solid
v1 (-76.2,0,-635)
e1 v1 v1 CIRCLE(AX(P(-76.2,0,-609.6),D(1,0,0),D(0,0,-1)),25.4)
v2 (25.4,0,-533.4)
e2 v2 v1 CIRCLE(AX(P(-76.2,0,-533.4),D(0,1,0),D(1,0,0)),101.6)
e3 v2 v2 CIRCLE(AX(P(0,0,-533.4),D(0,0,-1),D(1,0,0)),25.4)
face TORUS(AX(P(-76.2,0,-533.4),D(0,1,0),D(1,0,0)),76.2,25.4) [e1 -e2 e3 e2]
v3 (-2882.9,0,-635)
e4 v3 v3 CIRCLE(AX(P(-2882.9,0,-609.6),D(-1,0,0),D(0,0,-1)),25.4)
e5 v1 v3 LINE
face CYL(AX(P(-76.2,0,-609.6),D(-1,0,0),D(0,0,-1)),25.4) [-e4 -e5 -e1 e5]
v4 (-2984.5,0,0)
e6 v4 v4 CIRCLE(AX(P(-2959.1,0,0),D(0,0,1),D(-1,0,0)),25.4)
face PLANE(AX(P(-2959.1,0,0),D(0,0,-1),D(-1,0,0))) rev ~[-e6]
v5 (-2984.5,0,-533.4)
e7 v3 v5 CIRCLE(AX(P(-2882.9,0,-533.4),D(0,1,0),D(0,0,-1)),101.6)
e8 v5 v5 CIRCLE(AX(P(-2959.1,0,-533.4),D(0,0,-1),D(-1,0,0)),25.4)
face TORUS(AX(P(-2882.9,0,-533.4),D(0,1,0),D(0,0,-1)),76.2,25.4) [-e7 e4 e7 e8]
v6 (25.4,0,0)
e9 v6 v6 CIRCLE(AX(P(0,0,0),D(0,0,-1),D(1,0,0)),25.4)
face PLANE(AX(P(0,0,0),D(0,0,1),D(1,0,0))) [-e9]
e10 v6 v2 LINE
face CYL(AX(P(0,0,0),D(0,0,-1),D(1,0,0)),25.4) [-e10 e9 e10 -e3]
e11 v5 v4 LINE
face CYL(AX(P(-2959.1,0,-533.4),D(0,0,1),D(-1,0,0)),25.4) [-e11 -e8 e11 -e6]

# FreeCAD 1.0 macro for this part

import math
import FreeCAD as App
import Part
import Sketcher

V = App.Vector
Q = App.Units.Quantity

doc = App.newDocument("Part")
body = doc.addObject("PartDesign::Body", "Body")

# Sketch on XY plane
sketch1 = doc.addObject("Sketcher::SketchObject", "Sketch")
body.addObject(sketch1)
sketch1.AttachmentSupport = (doc.XY_Plane, [""])
sketch1.MapMode = "FlatFace"
sketch1.addGeometry(Part.Circle(V(0, 0, 0), V(0, 0, 1), 25), False)
sketch1.addConstraint([
    Sketcher.Constraint("Coincident", 0, 3, -1, 1),
    Sketcher.Constraint("Diameter", 0, Q("2 in")),
])

# Sketch on XZ plane
sketch2 = doc.addObject("Sketcher::SketchObject", "Sketch001")
body.addObject(sketch2)
sketch2.AttachmentSupport = (doc.XZ_Plane, [""])
sketch2.MapMode = "FlatFace"
sketch2.addGeometry([
    Part.LineSegment(V(0, 0, 0), V(0, -533, 0)),  # 0
    Part.ArcOfCircle(Part.Circle(V(-76, -533, 0), V(0, 0, 1), 76), math.radians(-90), math.radians(0)),  # 1
    Part.LineSegment(V(-76, -610, 0), V(-2883, -610, 0)),  # 2
    Part.ArcOfCircle(Part.Circle(V(-2883, -533, 0), V(0, 0, 1), 76), math.radians(180), math.radians(270)),  # 3
    Part.LineSegment(V(-2959, -533, 0), V(-2959, 0, 0)),  # 4
], False)
sketch2.addConstraint([
    Sketcher.Constraint("Tangent", 0, 2, 1, 2),
    Sketcher.Constraint("Tangent", 1, 1, 2, 1),
    Sketcher.Constraint("Tangent", 2, 2, 3, 2),
    Sketcher.Constraint("Tangent", 3, 1, 4, 1),
    Sketcher.Constraint("Vertical", 0),
    Sketcher.Constraint("Horizontal", 2),
    Sketcher.Constraint("Vertical", 4),
    Sketcher.Constraint("Coincident", 0, 1, -1, 1),
    Sketcher.Constraint("Equal", 1, 3),
    Sketcher.Constraint("PointOnObject", 4, 2, -1),
    Sketcher.Constraint("Radius", 1, Q("3 in")),
    Sketcher.Constraint("DistanceY", 0, 2, 0, 1, Q("21 in")),
    Sketcher.Constraint("DistanceX", 2, 2, 2, 1, Q("110.5 in")),
])
doc.recompute()

additivepipe = doc.addObject("PartDesign::AdditivePipe", "AdditivePipe")
body.addObject(additivepipe)
additivepipe.Profile = sketch1
additivepipe.Spine = (sketch2, ["Edge1", "Edge2", "Edge3", "Edge4", "Edge5"])

doc.recompute()
